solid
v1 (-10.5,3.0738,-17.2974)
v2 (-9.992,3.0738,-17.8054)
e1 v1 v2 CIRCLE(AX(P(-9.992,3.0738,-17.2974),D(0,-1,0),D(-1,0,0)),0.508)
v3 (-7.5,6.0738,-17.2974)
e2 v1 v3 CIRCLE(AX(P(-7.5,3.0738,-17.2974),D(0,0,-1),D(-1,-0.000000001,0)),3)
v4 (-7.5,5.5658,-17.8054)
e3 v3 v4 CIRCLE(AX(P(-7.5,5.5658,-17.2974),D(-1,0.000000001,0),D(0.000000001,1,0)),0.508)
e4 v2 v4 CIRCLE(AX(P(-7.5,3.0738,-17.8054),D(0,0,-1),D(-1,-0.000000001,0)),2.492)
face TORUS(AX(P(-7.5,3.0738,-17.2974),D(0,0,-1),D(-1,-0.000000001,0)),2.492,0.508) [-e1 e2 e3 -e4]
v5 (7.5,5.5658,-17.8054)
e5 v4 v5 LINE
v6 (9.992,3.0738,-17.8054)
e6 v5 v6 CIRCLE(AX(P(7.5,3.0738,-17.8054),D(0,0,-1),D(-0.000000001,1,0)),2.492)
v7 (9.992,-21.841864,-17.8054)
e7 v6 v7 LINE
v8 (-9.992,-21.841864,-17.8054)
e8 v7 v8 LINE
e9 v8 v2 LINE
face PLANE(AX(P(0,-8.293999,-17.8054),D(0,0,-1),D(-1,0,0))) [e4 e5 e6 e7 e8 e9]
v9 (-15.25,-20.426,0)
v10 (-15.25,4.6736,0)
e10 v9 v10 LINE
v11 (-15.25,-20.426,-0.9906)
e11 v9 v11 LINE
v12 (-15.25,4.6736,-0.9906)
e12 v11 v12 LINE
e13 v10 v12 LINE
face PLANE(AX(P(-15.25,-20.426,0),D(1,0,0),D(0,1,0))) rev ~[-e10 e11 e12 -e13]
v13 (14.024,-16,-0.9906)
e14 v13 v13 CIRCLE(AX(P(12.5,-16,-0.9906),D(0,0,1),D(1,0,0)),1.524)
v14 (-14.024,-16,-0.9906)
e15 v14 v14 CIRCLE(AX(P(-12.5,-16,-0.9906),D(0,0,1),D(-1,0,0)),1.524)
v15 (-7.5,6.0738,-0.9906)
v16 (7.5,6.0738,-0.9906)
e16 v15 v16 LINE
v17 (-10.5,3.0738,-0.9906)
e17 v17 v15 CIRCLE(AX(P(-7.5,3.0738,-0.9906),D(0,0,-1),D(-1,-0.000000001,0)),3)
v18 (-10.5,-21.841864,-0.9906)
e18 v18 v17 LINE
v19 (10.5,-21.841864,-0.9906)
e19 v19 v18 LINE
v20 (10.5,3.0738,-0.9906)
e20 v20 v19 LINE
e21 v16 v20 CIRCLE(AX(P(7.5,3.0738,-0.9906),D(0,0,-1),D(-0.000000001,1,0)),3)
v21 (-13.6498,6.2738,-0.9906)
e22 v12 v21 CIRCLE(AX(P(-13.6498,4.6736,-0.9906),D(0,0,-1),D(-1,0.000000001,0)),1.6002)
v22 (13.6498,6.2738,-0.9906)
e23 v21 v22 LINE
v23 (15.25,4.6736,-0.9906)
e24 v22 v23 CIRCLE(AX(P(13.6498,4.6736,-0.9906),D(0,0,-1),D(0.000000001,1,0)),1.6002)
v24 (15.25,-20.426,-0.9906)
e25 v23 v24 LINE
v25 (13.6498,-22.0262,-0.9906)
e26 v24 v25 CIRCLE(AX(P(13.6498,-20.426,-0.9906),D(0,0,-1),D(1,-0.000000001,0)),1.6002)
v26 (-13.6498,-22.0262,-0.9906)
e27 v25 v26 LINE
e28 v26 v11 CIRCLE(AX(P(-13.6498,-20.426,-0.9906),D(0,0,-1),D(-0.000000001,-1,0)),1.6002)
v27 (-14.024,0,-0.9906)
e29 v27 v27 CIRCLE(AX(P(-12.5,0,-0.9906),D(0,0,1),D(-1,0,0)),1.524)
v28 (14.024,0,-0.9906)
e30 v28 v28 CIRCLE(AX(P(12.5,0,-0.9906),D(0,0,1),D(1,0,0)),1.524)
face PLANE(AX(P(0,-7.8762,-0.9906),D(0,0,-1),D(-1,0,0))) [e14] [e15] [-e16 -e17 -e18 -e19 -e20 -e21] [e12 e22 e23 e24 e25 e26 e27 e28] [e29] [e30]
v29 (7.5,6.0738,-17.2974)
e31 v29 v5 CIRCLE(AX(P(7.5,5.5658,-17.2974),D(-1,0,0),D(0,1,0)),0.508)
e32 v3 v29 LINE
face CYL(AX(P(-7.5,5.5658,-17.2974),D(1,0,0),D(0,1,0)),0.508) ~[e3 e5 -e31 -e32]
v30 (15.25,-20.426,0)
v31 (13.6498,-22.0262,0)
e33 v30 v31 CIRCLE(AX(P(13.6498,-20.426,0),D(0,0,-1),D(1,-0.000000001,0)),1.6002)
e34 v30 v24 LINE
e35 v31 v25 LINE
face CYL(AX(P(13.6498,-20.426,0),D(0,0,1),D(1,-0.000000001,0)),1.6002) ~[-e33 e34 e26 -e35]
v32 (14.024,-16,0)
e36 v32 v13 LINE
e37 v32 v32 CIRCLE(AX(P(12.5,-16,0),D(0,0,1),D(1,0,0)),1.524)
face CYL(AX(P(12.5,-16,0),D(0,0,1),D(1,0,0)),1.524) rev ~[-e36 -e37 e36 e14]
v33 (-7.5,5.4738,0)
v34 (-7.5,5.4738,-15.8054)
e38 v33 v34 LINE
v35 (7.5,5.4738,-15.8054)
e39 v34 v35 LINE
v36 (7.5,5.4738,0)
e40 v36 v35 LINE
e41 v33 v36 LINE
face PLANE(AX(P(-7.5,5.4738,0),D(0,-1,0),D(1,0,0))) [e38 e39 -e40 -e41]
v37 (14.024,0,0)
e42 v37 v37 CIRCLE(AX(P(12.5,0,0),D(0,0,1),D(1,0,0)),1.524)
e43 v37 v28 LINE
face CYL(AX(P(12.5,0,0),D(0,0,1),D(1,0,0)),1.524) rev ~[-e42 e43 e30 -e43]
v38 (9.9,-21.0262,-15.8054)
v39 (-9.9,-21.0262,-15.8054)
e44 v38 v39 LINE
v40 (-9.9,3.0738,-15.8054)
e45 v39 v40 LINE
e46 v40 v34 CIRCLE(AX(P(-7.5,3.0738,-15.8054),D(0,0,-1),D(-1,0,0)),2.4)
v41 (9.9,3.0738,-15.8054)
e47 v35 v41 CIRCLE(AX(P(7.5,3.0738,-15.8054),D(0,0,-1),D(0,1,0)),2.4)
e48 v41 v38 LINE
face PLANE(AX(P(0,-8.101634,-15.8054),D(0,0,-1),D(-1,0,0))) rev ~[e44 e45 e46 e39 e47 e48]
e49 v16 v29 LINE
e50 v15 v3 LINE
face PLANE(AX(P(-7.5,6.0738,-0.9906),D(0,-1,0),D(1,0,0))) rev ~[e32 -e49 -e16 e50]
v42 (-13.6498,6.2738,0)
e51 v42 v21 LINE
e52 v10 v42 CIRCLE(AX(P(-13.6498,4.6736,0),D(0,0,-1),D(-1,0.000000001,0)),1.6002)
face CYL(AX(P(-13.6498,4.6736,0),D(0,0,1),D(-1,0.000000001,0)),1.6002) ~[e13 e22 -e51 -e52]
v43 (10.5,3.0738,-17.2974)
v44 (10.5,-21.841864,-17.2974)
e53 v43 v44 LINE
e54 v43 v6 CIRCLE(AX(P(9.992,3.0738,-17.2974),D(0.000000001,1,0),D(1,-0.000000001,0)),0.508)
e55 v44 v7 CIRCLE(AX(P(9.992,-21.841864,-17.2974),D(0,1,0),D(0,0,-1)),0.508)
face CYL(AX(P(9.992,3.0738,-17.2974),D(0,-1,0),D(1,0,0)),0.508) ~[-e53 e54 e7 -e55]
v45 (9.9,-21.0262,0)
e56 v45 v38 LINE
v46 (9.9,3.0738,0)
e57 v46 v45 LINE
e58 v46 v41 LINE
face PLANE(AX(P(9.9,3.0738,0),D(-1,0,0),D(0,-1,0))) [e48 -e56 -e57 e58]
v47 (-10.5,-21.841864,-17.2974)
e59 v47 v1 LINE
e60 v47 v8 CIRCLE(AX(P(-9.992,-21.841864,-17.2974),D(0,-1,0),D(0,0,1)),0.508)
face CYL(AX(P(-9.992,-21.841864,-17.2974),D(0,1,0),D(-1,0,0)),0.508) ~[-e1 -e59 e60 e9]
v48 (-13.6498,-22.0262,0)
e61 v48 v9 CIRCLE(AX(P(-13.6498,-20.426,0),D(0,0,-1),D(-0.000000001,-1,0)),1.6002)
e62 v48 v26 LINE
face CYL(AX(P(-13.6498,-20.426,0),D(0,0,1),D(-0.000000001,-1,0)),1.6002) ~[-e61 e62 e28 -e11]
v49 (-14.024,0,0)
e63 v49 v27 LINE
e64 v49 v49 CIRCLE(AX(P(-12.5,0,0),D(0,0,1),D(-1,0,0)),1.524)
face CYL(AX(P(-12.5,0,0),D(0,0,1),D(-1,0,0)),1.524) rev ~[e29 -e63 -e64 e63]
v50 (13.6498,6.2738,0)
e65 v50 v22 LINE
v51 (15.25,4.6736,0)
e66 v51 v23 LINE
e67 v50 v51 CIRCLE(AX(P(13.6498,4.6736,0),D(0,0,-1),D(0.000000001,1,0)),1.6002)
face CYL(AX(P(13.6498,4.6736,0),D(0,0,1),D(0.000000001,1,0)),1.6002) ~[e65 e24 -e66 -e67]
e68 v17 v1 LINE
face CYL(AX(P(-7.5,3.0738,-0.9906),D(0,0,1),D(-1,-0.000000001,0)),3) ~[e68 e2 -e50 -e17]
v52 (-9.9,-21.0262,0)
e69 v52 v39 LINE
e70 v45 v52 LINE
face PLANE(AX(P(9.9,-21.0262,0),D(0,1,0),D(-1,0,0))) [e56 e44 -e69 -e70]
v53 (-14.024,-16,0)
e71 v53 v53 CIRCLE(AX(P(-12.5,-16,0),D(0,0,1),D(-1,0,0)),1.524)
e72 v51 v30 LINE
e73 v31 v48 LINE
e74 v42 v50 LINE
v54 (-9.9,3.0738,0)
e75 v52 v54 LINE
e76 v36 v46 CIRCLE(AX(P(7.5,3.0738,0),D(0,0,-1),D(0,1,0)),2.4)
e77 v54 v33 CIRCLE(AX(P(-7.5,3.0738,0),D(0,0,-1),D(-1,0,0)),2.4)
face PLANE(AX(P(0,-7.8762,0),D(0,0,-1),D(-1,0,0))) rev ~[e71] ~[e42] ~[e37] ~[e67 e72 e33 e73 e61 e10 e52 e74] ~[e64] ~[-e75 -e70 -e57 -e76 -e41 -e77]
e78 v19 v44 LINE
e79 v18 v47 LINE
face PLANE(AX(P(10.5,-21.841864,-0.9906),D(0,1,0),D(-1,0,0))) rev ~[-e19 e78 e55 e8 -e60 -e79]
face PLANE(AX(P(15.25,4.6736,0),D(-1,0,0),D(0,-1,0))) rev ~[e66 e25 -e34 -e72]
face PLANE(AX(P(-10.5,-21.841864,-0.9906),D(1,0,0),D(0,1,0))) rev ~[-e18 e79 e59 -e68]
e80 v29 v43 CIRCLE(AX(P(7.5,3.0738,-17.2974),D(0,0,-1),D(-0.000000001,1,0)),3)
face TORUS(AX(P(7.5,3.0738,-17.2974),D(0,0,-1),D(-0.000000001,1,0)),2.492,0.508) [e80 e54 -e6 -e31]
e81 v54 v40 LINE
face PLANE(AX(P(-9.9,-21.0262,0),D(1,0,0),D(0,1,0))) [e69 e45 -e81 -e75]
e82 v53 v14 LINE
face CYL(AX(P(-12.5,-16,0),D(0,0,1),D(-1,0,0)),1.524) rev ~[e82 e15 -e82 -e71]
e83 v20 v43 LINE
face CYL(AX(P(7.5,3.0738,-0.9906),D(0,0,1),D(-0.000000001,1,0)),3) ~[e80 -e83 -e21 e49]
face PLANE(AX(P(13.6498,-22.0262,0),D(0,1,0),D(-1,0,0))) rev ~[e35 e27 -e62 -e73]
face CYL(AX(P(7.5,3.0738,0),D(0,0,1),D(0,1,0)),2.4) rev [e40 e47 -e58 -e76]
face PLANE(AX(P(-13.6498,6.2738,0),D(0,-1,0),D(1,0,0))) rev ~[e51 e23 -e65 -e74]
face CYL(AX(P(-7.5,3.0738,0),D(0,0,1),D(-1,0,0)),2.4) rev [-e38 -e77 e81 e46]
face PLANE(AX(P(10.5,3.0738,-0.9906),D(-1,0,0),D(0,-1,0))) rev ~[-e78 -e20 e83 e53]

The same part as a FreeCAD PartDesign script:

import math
import FreeCAD as App
import Part
import Sketcher
Q = App.Units.Quantity


def edges_at(feature, points):
    """Names of the edges that pass closest to the given points."""
    edges = feature.Shape.Edges
    near = lambda p: min(range(len(edges)), key=lambda i: edges[i].distToShape(Part.Vertex(*p))[0])
    return sorted({f"Edge{near(p) + 1}" for p in points})

doc = App.newDocument("Part")
params = doc.addObject("Spreadsheet::Sheet", "Params")
for row, (alias, value) in enumerate([
    ("pad1_length", "0.9906 mm"),
    ("sketch3_radius", "3 mm"),
    ("sketch3_width", "21 mm"),
    ("pad2_length", "16.8148 mm"),
    ("fillet_radius", "0.508 mm"),
    ("sketch4_radius", "2.4 mm"),
    ("sketch4_width", "15 mm"),
    ("sketch4_height", "24.1 mm"),
    ("pocket2_length", "15.8054 mm"),
    ("linearpattern_pitch", "16 mm"),
], start=1):
    params.set(f"A{row}", alias)
    params.set(f"B{row}", "=" + value)
    params.setAlias(f"B{row}", alias)

body = doc.addObject("PartDesign::Body", "Body")

# Sketch on XY plane
sketch1 = body.newObject("Sketcher::SketchObject", "Sketch")
sketch1.AttachmentSupport = (doc.getObject("XY_Plane"), [""])
sketch1.MapMode = "FlatFace"
sketch1.addGeometry([
    Part.LineSegment(App.Vector(13.6, 6.3, 0), App.Vector(-13.6, 6.3, 0)),  # 0
    Part.ArcOfCircle(Part.Circle(App.Vector(-13.6, 4.7, 0), App.Vector(0, 0, 1), 1.6), math.radians(90), math.radians(180)),  # 1
    Part.LineSegment(App.Vector(-15.2, 4.7, 0), App.Vector(-15.2, -20.4, 0)),  # 2
    Part.ArcOfCircle(Part.Circle(App.Vector(-13.6, -20.4, 0), App.Vector(0, 0, 1), 1.6), math.radians(-180), math.radians(-90)),  # 3
    Part.LineSegment(App.Vector(-13.6, -22, 0), App.Vector(13.6, -22, 0)),  # 4
    Part.ArcOfCircle(Part.Circle(App.Vector(13.6, -20.4, 0), App.Vector(0, 0, 1), 1.6), math.radians(-90), math.radians(0)),  # 5
    Part.LineSegment(App.Vector(15.2, -20.4, 0), App.Vector(15.2, 4.7, 0)),  # 6
    Part.ArcOfCircle(Part.Circle(App.Vector(13.6, 4.7, 0), App.Vector(0, 0, 1), 1.6), math.radians(0), math.radians(90)),  # 7
], False)
sketch1.addConstraint([
    Sketcher.Constraint("Tangent", 0, 2, 1, 1),
    Sketcher.Constraint("Tangent", 1, 2, 2, 1),
    Sketcher.Constraint("Tangent", 2, 2, 3, 1),
    Sketcher.Constraint("Tangent", 3, 2, 4, 1),
    Sketcher.Constraint("Tangent", 4, 2, 5, 1),
    Sketcher.Constraint("Tangent", 5, 2, 6, 1),
    Sketcher.Constraint("Tangent", 6, 2, 7, 1),
    Sketcher.Constraint("Tangent", 7, 2, 0, 1),
    Sketcher.Constraint("Horizontal", 0),
    Sketcher.Constraint("Vertical", 2),
    Sketcher.Constraint("Horizontal", 4),
    Sketcher.Constraint("Vertical", 6),
    Sketcher.Constraint("Equal", 1, 3),
    Sketcher.Constraint("Equal", 3, 5),
    Sketcher.Constraint("Equal", 5, 7),
    Sketcher.Constraint("Radius", 1, Q("1.6002 mm")),
    Sketcher.Constraint("DistanceX", 1, 2, -1, 1, Q("15.25 mm")),
    Sketcher.Constraint("DistanceX", -1, 1, 5, 2, Q("15.25 mm")),
    Sketcher.Constraint("DistanceY", 2, 2, 2, 1, Q("25.0996 mm")),
    Sketcher.Constraint("DistanceY", 3, 3, -1, 1, Q("20.426 mm")),
])
pad1 = body.newObject("PartDesign::Pad", "Pad")
pad1.Profile = sketch1
pad1.setExpression("Length", "Params.pad1_length")
pad1.Reversed = True

# Sketch on XY plane
sketch2 = body.newObject("Sketcher::SketchObject", "Sketch001")
sketch2.AttachmentSupport = (doc.getObject("XY_Plane"), [""])
sketch2.MapMode = "FlatFace"
sketch2.addGeometry([
    Part.Circle(App.Vector(12.5, 0, 0), App.Vector(0, 0, 1), 1.5),
    Part.Circle(App.Vector(-12.5, 0, 0), App.Vector(0, 0, 1), 1.5),
], False)
sketch2.addConstraint([
    Sketcher.Constraint("Equal", 0, 1),
    Sketcher.Constraint("Symmetric", 0, 3, 1, 3, -1, 1),
    Sketcher.Constraint("PointOnObject", 0, 3, -1),
    Sketcher.Constraint("Diameter", 0, Q("3.048 mm")),
    Sketcher.Constraint("DistanceX", 1, 3, 0, 3, Q("25 mm")),
])
pocket1 = body.newObject("PartDesign::Pocket", "Pocket")
pocket1.Profile = sketch2
pocket1.Type = "ThroughAll"

# Sketch on XY plane
sketch3 = body.newObject("Sketcher::SketchObject", "Sketch002")
sketch3.AttachmentSupport = (doc.getObject("XY_Plane"), [""])
sketch3.MapMode = "FlatFace"
sketch3.AttachmentOffset = App.Placement(App.Vector(0, 0, -0.9906), App.Rotation())
sketch3.addGeometry([
    Part.LineSegment(App.Vector(10.5, 3.1, 0), App.Vector(10.5, -21.8, 0)),  # 0
    Part.LineSegment(App.Vector(10.5, -21.8, 0), App.Vector(-10.5, -21.8, 0)),  # 1
    Part.LineSegment(App.Vector(-10.5, -21.8, 0), App.Vector(-10.5, 3.1, 0)),  # 2
    Part.ArcOfCircle(Part.Circle(App.Vector(-7.5, 3.1, 0), App.Vector(0, 0, 1), 3), math.radians(90), math.radians(180)),  # 3
    Part.LineSegment(App.Vector(-7.5, 6.1, 0), App.Vector(7.5, 6.1, 0)),  # 4
    Part.ArcOfCircle(Part.Circle(App.Vector(7.5, 3.1, 0), App.Vector(0, 0, 1), 3), math.radians(0), math.radians(90)),  # 5
], False)
sketch3.addConstraint([
    Sketcher.Constraint("Coincident", 0, 2, 1, 1),
    Sketcher.Constraint("Coincident", 1, 2, 2, 1),
    Sketcher.Constraint("Tangent", 2, 2, 3, 2),
    Sketcher.Constraint("Tangent", 3, 1, 4, 1),
    Sketcher.Constraint("Tangent", 4, 2, 5, 2),
    Sketcher.Constraint("Tangent", 5, 1, 0, 1),
    Sketcher.Constraint("Vertical", 0),
    Sketcher.Constraint("Horizontal", 1),
    Sketcher.Constraint("Vertical", 2),
    Sketcher.Constraint("Horizontal", 4),
    Sketcher.Constraint("Equal", 3, 5),
    Sketcher.Constraint("Radius", 3, Q("3 mm")),
    Sketcher.Constraint("DistanceX", 1, 2, 1, 1, Q("21 mm")),
    Sketcher.Constraint("DistanceX", 3, 3, -1, 1, Q("7.5 mm")),
    Sketcher.Constraint("DistanceY", -1, 1, 3, 3, Q("3.0738 mm")),
    Sketcher.Constraint("DistanceY", 0, 2, 0, 1, Q("24.915664 mm")),
])
sketch3.setExpression("Constraints[11]", "Params.sketch3_radius")
sketch3.setExpression("Constraints[12]", "Params.sketch3_width")
pad2 = body.newObject("PartDesign::Pad", "Pad001")
pad2.Profile = sketch3
pad2.setExpression("Length", "Params.pad2_length")
pad2.Reversed = True
doc.recompute()

fillet = body.newObject("PartDesign::Fillet", "Fillet")
fillet.Base = (pad2, edges_at(pad2, [
    (-9.621, 5.195, -17.805),
    (9.621, 5.195, -17.805),
    (-10.5, -9.384, -17.805),
    (0, 6.074, -17.805),
    (10.5, -9.384, -17.805),
]))
fillet.setExpression("Radius", "Params.fillet_radius")

# Sketch on XY plane
sketch4 = body.newObject("Sketcher::SketchObject", "Sketch003")
sketch4.AttachmentSupport = (doc.getObject("XY_Plane"), [""])
sketch4.MapMode = "FlatFace"
sketch4.addGeometry([
    Part.LineSegment(App.Vector(-9.9, -21, 0), App.Vector(9.9, -21, 0)),  # 0
    Part.LineSegment(App.Vector(9.9, -21, 0), App.Vector(9.9, 3.1, 0)),  # 1
    Part.ArcOfCircle(Part.Circle(App.Vector(7.5, 3.1, 0), App.Vector(0, 0, 1), 2.4), math.radians(0), math.radians(90)),  # 2
    Part.LineSegment(App.Vector(7.5, 5.5, 0), App.Vector(-7.5, 5.5, 0)),  # 3
    Part.ArcOfCircle(Part.Circle(App.Vector(-7.5, 3.1, 0), App.Vector(0, 0, 1), 2.4), math.radians(90), math.radians(180)),  # 4
    Part.LineSegment(App.Vector(-9.9, 3.1, 0), App.Vector(-9.9, -21, 0)),  # 5
], False)
sketch4.addConstraint([
    Sketcher.Constraint("Coincident", 0, 2, 1, 1),
    Sketcher.Constraint("Tangent", 1, 2, 2, 1),
    Sketcher.Constraint("Tangent", 2, 2, 3, 1),
    Sketcher.Constraint("Tangent", 3, 2, 4, 1),
    Sketcher.Constraint("Tangent", 4, 2, 5, 1),
    Sketcher.Constraint("Coincident", 5, 2, 0, 1),
    Sketcher.Constraint("Horizontal", 0),
    Sketcher.Constraint("Vertical", 1),
    Sketcher.Constraint("Horizontal", 3),
    Sketcher.Constraint("Vertical", 5),
    Sketcher.Constraint("Equal", 2, 4),
    Sketcher.Constraint("Radius", 2, Q("2.4 mm")),
    Sketcher.Constraint("DistanceX", 3, 2, 3, 1, Q("15 mm")),
    Sketcher.Constraint("DistanceY", 1, 1, 1, 2, Q("24.1 mm")),
    Sketcher.Constraint("DistanceX", -1, 1, 2, 3, Q("7.5 mm")),
    Sketcher.Constraint("DistanceY", -1, 1, 2, 3, Q("3.0738 mm")),
])
sketch4.setExpression("Constraints[11]", "Params.sketch4_radius")
sketch4.setExpression("Constraints[12]", "Params.sketch4_width")
sketch4.setExpression("Constraints[13]", "Params.sketch4_height")
pocket2 = body.newObject("PartDesign::Pocket", "Pocket001")
pocket2.Profile = sketch4
pocket2.setExpression("Length", "Params.pocket2_length")
doc.recompute()

linearpattern = body.newObject("PartDesign::LinearPattern", "LinearPattern")
linearpattern.Originals = [pocket1]
linearpattern.Direction = (doc.getObject("Y_Axis"), [""])
linearpattern.Mode = "offset"
linearpattern.setExpression("Offset", "Params.linearpattern_pitch")
linearpattern.Occurrences = 2
linearpattern.Reversed = True
body.Tip = linearpattern

doc.recompute()
